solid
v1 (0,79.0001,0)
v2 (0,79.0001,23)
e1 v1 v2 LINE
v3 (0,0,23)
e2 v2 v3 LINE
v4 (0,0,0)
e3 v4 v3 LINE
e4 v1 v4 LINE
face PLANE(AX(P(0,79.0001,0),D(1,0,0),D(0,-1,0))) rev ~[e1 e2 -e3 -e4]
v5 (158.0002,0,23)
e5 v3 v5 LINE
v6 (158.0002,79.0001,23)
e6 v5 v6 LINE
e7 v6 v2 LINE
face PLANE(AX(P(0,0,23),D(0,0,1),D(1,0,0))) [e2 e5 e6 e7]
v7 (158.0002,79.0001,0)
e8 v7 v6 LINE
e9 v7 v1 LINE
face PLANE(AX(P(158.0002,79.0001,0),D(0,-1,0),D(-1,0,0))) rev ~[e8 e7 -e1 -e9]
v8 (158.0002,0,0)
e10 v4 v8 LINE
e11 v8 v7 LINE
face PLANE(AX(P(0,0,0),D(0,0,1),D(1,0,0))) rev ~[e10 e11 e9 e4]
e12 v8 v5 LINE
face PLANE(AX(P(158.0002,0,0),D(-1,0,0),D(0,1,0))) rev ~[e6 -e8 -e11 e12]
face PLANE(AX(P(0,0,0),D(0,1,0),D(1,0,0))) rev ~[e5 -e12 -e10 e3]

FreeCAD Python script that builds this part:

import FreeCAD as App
import Part
import Sketcher
from FreeCAD import Vector

doc = App.newDocument("Part")
body = doc.addObject("PartDesign::Body", "Body")

# Sketch on XY plane
sketch1 = body.newObject("Sketcher::SketchObject", "Sketch")
sketch1.AttachmentSupport = (doc.getObject("XY_Plane"), [""])
sketch1.MapMode = "FlatFace"
sketch1.addGeometry([
    Part.LineSegment(Vector(0, 79, 0), Vector(0, 0, 0)),
    Part.LineSegment(Vector(0, 0, 0), Vector(158, 0, 0)),
    Part.LineSegment(Vector(158, 0, 0), Vector(158, 79, 0)),
    Part.LineSegment(Vector(158, 79, 0), Vector(0, 79, 0)),
], False)
sketch1.addConstraint([
    Sketcher.Constraint("Coincident", 0, 2, 1, 1),
    Sketcher.Constraint("Coincident", 1, 2, 2, 1),
    Sketcher.Constraint("Coincident", 2, 2, 3, 1),
    Sketcher.Constraint("Coincident", 3, 2, 0, 1),
    Sketcher.Constraint("Vertical", 0),
    Sketcher.Constraint("Horizontal", 1),
    Sketcher.Constraint("Vertical", 2),
    Sketcher.Constraint("Horizontal", 3),
    Sketcher.Constraint("Coincident", 0, 2, -1, 1),
    Sketcher.Constraint("DistanceY", 0, 2, 0, 1, 79.0),
    Sketcher.Constraint("DistanceX", 1, 1, 1, 2, 158.0002),
])
pad1 = body.newObject("PartDesign::Pad", "Pad")
pad1.Profile = sketch1
pad1.Length = 23

doc.recompute()
